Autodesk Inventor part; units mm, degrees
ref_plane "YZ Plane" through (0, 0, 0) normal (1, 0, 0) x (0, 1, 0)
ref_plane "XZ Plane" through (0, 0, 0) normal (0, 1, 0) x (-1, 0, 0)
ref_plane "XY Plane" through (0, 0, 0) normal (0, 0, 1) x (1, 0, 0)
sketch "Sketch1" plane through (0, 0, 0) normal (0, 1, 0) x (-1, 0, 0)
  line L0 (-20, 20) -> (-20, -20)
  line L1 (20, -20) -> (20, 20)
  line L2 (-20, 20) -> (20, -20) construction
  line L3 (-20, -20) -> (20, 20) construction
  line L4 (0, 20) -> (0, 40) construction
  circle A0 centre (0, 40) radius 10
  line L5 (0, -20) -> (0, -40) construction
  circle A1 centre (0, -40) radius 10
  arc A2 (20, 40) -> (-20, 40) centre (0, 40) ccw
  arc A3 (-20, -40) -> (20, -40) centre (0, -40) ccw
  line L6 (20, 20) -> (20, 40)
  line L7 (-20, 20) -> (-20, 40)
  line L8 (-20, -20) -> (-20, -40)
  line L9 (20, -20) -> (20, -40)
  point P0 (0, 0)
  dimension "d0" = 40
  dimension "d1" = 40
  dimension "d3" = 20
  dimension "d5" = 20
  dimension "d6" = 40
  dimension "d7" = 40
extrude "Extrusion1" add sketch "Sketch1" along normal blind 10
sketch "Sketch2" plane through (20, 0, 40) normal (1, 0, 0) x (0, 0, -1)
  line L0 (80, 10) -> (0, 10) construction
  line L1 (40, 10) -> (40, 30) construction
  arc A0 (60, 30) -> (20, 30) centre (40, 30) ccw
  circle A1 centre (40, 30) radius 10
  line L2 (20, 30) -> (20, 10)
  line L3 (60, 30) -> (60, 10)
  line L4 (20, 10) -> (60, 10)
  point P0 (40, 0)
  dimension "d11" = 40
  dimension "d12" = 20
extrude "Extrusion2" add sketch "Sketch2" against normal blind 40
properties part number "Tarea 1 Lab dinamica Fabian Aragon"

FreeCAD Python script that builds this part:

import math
import FreeCAD as App
import Part
import Sketcher
Q = App.Units.Quantity

doc = App.newDocument("Part")
params = doc.addObject("Spreadsheet::Sheet", "Params")
for row, (alias, value) in enumerate([
    ("sketch1_diameter", "20 mm"),
    ("sketch1_radius", "20 mm"),
    ("pad1_length", "10 mm"),
    ("sketch2_diameter", "20 mm"),
    ("sketch2_radius", "20 mm"),
    ("sketch2_width", "20 mm"),
    ("pad2_length", "40 mm"),
], start=1):
    params.set(f"A{row}", alias)
    params.set(f"B{row}", "=" + value)
    params.setAlias(f"B{row}", alias)

body = doc.addObject("PartDesign::Body", "Body")

# Sketch on XZ plane
sketch1 = body.newObject("Sketcher::SketchObject", "Sketch")
sketch1.AttachmentSupport = (doc.getObject("XZ_Plane"), [""])
sketch1.MapMode = "FlatFace"
sketch1.addGeometry(Part.LineSegment(App.Vector(20, 40, 0), App.Vector(20, -40, 0)), False)
sketch1.addGeometry(Part.ArcOfCircle(Part.Circle(App.Vector(0, -40, 0), App.Vector(0, 0, 1), 20), math.radians(180), math.radians(360)), False)
sketch1.addGeometry(Part.LineSegment(App.Vector(-20, -40, 0), App.Vector(-20, 40, 0)), False)
sketch1.addGeometry(Part.ArcOfCircle(Part.Circle(App.Vector(0, 40, 0), App.Vector(0, 0, 1), 20), math.radians(0), math.radians(180)), False)
sketch1.addGeometry(Part.Circle(App.Vector(0, -40, 0), App.Vector(0, 0, 1), 10), False)
sketch1.addGeometry(Part.Circle(App.Vector(0, 40, 0), App.Vector(0, 0, 1), 10), False)
sketch1.addConstraint(Sketcher.Constraint("Tangent", 0, 2, 1, 2))
sketch1.addConstraint(Sketcher.Constraint("Tangent", 1, 1, 2, 1))
sketch1.addConstraint(Sketcher.Constraint("Tangent", 2, 2, 3, 2))
sketch1.addConstraint(Sketcher.Constraint("Tangent", 3, 1, 0, 1))
sketch1.addConstraint(Sketcher.Constraint("Vertical", 0))
sketch1.addConstraint(Sketcher.Constraint("Vertical", 2))
sketch1.addConstraint(Sketcher.Constraint("Coincident", 4, 3, 1, 3))
sketch1.addConstraint(Sketcher.Constraint("Coincident", 5, 3, 3, 3))
sketch1.addConstraint(Sketcher.Constraint("Equal", 4, 5))
sketch1.addConstraint(Sketcher.Constraint("Symmetric", 1, 3, 3, 3, -1, 1))
sketch1.addConstraint(Sketcher.Constraint("Diameter", 4, Q("20 mm")))
sketch1.addConstraint(Sketcher.Constraint("Radius", 1, Q("20 mm")))
sketch1.addConstraint(Sketcher.Constraint("DistanceY", 1, 3, -1, 1, Q("40 mm")))
sketch1.setExpression("Constraints[10]", "Params.sketch1_diameter")
sketch1.setExpression("Constraints[11]", "Params.sketch1_radius")
pad1 = body.newObject("PartDesign::Pad", "Pad")
pad1.Profile = sketch1
pad1.setExpression("Length", "Params.pad1_length")
pad1.Reversed = True

# Sketch on YZ plane
sketch2 = body.newObject("Sketcher::SketchObject", "Sketch001")
sketch2.AttachmentSupport = (doc.getObject("YZ_Plane"), [""])
sketch2.MapMode = "FlatFace"
sketch2.AttachmentOffset = App.Placement(App.Vector(0, 0, 20), App.Rotation())
sketch2.addGeometry(Part.LineSegment(App.Vector(10, -20, 0), App.Vector(30, -20, 0)), False)
sketch2.addGeometry(Part.ArcOfCircle(Part.Circle(App.Vector(30, 0, 0), App.Vector(0, 0, 1), 20), math.radians(-90), math.radians(90)), False)
sketch2.addGeometry(Part.LineSegment(App.Vector(30, 20, 0), App.Vector(10, 20, 0)), False)
sketch2.addGeometry(Part.LineSegment(App.Vector(10, 20, 0), App.Vector(10, -20, 0)), False)
sketch2.addGeometry(Part.Circle(App.Vector(30, 0, 0), App.Vector(0, 0, 1), 10), False)
sketch2.addConstraint(Sketcher.Constraint("Tangent", 0, 2, 1, 1))
sketch2.addConstraint(Sketcher.Constraint("Tangent", 1, 2, 2, 1))
sketch2.addConstraint(Sketcher.Constraint("Coincident", 2, 2, 3, 1))
sketch2.addConstraint(Sketcher.Constraint("Coincident", 3, 2, 0, 1))
sketch2.addConstraint(Sketcher.Constraint("Horizontal", 0))
sketch2.addConstraint(Sketcher.Constraint("Horizontal", 2))
sketch2.addConstraint(Sketcher.Constraint("Vertical", 3))
sketch2.addConstraint(Sketcher.Constraint("Coincident", 4, 3, 1, 3))
sketch2.addConstraint(Sketcher.Constraint("PointOnObject", 1, 3, -1))
sketch2.addConstraint(Sketcher.Constraint("Diameter", 4, Q("20 mm")))
sketch2.addConstraint(Sketcher.Constraint("Radius", 1, Q("20 mm")))
sketch2.addConstraint(Sketcher.Constraint("DistanceX", 0, 1, 0, 2, Q("20 mm")))
sketch2.addConstraint(Sketcher.Constraint("DistanceX", -1, 1, 1, 3, Q("30 mm")))
sketch2.setExpression("Constraints[9]", "Params.sketch2_diameter")
sketch2.setExpression("Constraints[10]", "Params.sketch2_radius")
sketch2.setExpression("Constraints[11]", "Params.sketch2_width")
pad2 = body.newObject("PartDesign::Pad", "Pad001")
pad2.Profile = sketch2
pad2.setExpression("Length", "Params.pad2_length")
pad2.Reversed = True

doc.recompute()
